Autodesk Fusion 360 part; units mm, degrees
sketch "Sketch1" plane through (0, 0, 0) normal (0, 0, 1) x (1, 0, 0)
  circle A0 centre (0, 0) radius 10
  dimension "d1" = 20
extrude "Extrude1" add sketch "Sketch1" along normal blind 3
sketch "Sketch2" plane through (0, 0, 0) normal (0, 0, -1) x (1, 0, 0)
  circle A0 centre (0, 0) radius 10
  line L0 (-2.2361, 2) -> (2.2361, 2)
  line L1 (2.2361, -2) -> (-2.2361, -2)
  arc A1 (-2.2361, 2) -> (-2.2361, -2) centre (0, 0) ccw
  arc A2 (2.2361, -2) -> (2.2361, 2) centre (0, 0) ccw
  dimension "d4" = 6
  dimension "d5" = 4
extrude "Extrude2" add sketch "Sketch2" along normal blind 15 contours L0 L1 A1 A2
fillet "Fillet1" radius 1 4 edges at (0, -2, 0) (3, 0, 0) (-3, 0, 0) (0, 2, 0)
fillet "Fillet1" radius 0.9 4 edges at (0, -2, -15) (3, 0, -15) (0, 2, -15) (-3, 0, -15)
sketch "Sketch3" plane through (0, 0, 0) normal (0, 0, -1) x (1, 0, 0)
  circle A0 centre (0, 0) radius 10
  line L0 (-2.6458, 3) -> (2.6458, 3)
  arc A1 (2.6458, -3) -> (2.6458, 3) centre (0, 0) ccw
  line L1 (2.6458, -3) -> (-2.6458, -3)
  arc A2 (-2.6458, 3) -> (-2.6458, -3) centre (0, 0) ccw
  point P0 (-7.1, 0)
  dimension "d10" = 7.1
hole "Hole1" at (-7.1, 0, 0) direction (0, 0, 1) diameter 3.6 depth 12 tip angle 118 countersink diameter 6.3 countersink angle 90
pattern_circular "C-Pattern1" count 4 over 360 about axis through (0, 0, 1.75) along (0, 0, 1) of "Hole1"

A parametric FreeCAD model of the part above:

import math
import FreeCAD as App
import Part
import Sketcher

V = App.Vector


def edges_at(feature, points):
    """Names of the edges that pass closest to the given points."""
    edges = feature.Shape.Edges
    near = lambda p: min(range(len(edges)), key=lambda i: edges[i].distToShape(Part.Vertex(*p))[0])
    return sorted({f"Edge{near(p) + 1}" for p in points})

doc = App.newDocument("Part")
body = doc.addObject("PartDesign::Body", "Body")

# Sketch on XY plane
sketch1 = body.newObject("Sketcher::SketchObject", "Sketch")
sketch1.AttachmentSupport = (doc.getObject("XY_Plane"), [""])
sketch1.MapMode = "FlatFace"
sketch1.addGeometry(Part.Circle(V(0, 0, 0), V(0, 0, 1), 10), False)
sketch1.addConstraint([
    Sketcher.Constraint("Coincident", 0, 3, -1, 1),
    Sketcher.Constraint("Diameter", 0, 20.0),
])
pad1 = body.newObject("PartDesign::Pad", "Pad")
pad1.Profile = sketch1
pad1.Length = 3

# Sketch on XY plane
sketch2 = body.newObject("Sketcher::SketchObject", "Sketch001")
sketch2.AttachmentSupport = (doc.getObject("XY_Plane"), [""])
sketch2.MapMode = "FlatFace"
sketch2.addGeometry([
    Part.LineSegment(V(2.2, -2, 0), V(-2.2, -2, 0)),
    Part.ArcOfCircle(Part.Circle(V(0, 0, 0), V(0, 0, 1), 3), math.radians(138), math.radians(222)),
    Part.LineSegment(V(-2.2, 2, 0), V(2.2, 2, 0)),
    Part.ArcOfCircle(Part.Circle(V(0, 0, 0), V(0, 0, 1), 3), math.radians(-42), math.radians(42)),
], False)
sketch2.addConstraint([
    Sketcher.Constraint("Coincident", 0, 2, 1, 2),
    Sketcher.Constraint("Coincident", 1, 1, 2, 1),
    Sketcher.Constraint("Coincident", 2, 2, 3, 2),
    Sketcher.Constraint("Coincident", 3, 1, 0, 1),
    Sketcher.Constraint("Horizontal", 0),
    Sketcher.Constraint("Horizontal", 2),
    Sketcher.Constraint("Coincident", 1, 3, -1, 1),
    Sketcher.Constraint("Coincident", 3, 3, -1, 1),
    Sketcher.Constraint("Equal", 1, 3),
    Sketcher.Constraint("Vertical", 0, 2, 1, 1),
    Sketcher.Constraint("Radius", 1, 3.0),
    Sketcher.Constraint("DistanceY", 0, 2, 1, 1, 4.0),
])
pad2 = body.newObject("PartDesign::Pad", "Pad001")
pad2.Profile = sketch2
pad2.Length = 15
pad2.Reversed = True
doc.recompute()

fillet = body.newObject("PartDesign::Fillet", "Fillet")
fillet.Base = (pad2, edges_at(pad2, [
    (0, -2, 0),
    (3, 0, 0),
    (-3, 0, 0),
    (0, 2, 0),
]))
fillet.Radius = 1
doc.recompute()

fillet2 = body.newObject("PartDesign::Fillet", "Fillet001")
fillet2.Base = (fillet, edges_at(fillet, [
    (0, -2, -15),
    (3, 0, -15),
    (0, 2, -15),
    (-3, 0, -15),
]))
fillet2.Radius = 0.9

# Sketch on XY plane
sketch3 = body.newObject("Sketcher::SketchObject", "Sketch002")
sketch3.AttachmentSupport = (doc.getObject("XY_Plane"), [""])
sketch3.MapMode = "FlatFace"
sketch3.addGeometry(Part.Circle(V(-7.1, 0, 0), V(0, 0, 1), 1.8), False)
sketch3.addConstraint([
    Sketcher.Constraint("PointOnObject", 0, 3, -1),
    Sketcher.Constraint("Diameter", 0, 3.6),
    Sketcher.Constraint("DistanceX", 0, 3, -1, 1, 7.1),
])
doc.recompute()
hole = body.newObject("PartDesign::Hole", "Hole")
hole.Profile = sketch3
hole.ThreadType = "None"
hole.Diameter = 3.6
hole.DepthType = "Dimension"
hole.Depth = 12
hole.DrillPoint = "Angled"
hole.DrillPointAngle = 118
hole.HoleCutType = "Countersink"
hole.HoleCutDiameter = 6.3
hole.HoleCutCountersinkAngle = 90
hole.Reversed = True
doc.recompute()

polarpattern = body.newObject("PartDesign::PolarPattern", "PolarPattern")
polarpattern.Originals = [hole]
polarpattern.Axis = (doc.getObject("Z_Axis"), [""])
polarpattern.Angle = 360
polarpattern.Occurrences = 4
body.Tip = polarpattern

doc.recompute()
